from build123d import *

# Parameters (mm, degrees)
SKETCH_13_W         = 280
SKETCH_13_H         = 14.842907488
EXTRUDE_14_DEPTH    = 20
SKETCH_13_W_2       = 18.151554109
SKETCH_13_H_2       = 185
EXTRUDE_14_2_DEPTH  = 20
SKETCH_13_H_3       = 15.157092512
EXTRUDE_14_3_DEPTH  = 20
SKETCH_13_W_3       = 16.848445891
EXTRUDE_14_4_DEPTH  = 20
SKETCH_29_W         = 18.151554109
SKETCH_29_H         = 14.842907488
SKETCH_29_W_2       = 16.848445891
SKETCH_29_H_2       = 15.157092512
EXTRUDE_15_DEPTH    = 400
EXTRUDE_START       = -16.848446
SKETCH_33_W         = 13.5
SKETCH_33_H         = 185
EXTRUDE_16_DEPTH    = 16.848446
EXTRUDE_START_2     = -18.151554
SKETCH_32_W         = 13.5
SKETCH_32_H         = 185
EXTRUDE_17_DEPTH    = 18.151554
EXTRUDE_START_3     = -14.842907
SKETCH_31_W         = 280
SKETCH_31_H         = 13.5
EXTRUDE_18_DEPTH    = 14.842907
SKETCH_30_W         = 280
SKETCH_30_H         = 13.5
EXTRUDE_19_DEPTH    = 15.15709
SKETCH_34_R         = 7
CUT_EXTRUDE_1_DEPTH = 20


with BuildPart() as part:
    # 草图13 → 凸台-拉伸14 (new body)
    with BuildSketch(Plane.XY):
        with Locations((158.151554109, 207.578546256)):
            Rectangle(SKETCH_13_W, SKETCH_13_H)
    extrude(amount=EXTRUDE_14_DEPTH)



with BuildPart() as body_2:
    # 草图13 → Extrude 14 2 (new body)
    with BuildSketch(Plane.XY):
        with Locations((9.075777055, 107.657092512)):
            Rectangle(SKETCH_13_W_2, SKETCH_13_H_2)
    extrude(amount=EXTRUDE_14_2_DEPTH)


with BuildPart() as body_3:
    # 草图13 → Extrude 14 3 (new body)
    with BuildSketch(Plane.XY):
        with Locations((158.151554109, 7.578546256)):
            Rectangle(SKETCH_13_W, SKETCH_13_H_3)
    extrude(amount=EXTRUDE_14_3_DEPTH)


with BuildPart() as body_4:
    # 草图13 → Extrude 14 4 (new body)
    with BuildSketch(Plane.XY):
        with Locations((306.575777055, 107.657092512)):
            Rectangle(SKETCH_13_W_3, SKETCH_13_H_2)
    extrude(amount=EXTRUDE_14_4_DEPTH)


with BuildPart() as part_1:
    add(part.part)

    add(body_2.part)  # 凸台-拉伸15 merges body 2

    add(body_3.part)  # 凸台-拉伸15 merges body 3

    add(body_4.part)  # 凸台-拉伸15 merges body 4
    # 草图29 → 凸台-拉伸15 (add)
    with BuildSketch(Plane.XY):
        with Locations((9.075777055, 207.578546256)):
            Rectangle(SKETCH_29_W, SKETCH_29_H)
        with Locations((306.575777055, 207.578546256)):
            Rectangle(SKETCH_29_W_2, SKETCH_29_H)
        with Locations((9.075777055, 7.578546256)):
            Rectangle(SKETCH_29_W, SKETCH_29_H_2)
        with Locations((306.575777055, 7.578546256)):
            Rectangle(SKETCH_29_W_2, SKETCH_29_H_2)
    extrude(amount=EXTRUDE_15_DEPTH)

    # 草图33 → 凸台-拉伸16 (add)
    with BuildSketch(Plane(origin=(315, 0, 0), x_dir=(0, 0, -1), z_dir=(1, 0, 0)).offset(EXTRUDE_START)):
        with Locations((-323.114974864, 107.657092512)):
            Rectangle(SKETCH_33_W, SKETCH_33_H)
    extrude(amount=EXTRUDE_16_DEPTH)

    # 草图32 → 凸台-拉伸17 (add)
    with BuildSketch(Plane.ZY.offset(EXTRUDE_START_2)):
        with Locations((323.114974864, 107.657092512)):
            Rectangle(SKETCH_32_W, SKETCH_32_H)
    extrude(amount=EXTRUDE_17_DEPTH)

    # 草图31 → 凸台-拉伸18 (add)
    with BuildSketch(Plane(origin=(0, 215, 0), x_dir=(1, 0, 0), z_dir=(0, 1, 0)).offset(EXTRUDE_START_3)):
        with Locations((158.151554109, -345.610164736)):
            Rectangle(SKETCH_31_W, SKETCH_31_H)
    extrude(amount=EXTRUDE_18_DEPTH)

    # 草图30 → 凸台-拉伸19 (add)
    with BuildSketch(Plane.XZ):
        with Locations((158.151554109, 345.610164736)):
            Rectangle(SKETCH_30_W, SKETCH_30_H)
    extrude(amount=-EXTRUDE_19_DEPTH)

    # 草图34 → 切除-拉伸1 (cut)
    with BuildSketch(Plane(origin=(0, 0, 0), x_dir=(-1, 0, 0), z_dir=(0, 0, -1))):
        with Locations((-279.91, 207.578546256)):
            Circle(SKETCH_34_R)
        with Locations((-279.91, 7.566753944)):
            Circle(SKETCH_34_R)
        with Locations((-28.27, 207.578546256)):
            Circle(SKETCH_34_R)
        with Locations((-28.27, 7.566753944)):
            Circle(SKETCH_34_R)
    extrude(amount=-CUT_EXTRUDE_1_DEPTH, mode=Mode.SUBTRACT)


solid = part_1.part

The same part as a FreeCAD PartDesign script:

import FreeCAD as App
import Part
import Sketcher

V = App.Vector

doc = App.newDocument("Part")
body = doc.addObject("PartDesign::Body", "Body")

# Sketch on XY plane
sketch1 = doc.addObject("Sketcher::SketchObject", "Sketch")
body.addObject(sketch1)
sketch1.AttachmentSupport = (doc.XY_Plane, [""])
sketch1.MapMode = "FlatFace"
sketch1.addGeometry([
    Part.LineSegment(V(18.151554, 215, 0), V(18.151554, 200.157093, 0)),
    Part.LineSegment(V(18.151554, 200.157093, 0), V(298.151554, 200.157093, 0)),
    Part.LineSegment(V(298.151554, 200.157093, 0), V(298.151554, 215, 0)),
    Part.LineSegment(V(298.151554, 215, 0), V(18.151554, 215, 0)),
], False)
sketch1.addConstraint([
    Sketcher.Constraint("Coincident", 0, 2, 1, 1),
    Sketcher.Constraint("Coincident", 1, 2, 2, 1),
    Sketcher.Constraint("Coincident", 2, 2, 3, 1),
    Sketcher.Constraint("Coincident", 3, 2, 0, 1),
    Sketcher.Constraint("Vertical", 0),
    Sketcher.Constraint("Horizontal", 1),
    Sketcher.Constraint("Vertical", 2),
    Sketcher.Constraint("Horizontal", 3),
    Sketcher.Constraint("DistanceX", 1, 1, 1, 2, 280.0),
    Sketcher.Constraint("DistanceY", -1, 1, 2, 2, 215.0),
    Sketcher.Constraint("DistanceY", 0, 2, 0, 1, 14.842907),
    Sketcher.Constraint("DistanceX", -1, 1, 0, 2, 18.151554),
])
pad1 = doc.addObject("PartDesign::Pad", "Pad")
body.addObject(pad1)
pad1.Profile = sketch1
pad1.Length = 20
body2 = doc.addObject("PartDesign::Body", "Body001")

# Sketch on XY plane
sketch2 = doc.addObject("Sketcher::SketchObject", "Sketch001")
body2.addObject(sketch2)
sketch2.AttachmentSupport = (doc.getObject("XY_Plane001"), [""])
sketch2.MapMode = "FlatFace"
sketch2.addGeometry([
    Part.LineSegment(V(0, 200.157093, 0), V(0, 15.157093, 0)),
    Part.LineSegment(V(0, 15.157093, 0), V(18.151554, 15.157093, 0)),
    Part.LineSegment(V(18.151554, 15.157093, 0), V(18.151554, 200.157093, 0)),
    Part.LineSegment(V(18.151554, 200.157093, 0), V(0, 200.157093, 0)),
], False)
sketch2.addConstraint([
    Sketcher.Constraint("Coincident", 0, 2, 1, 1),
    Sketcher.Constraint("Coincident", 1, 2, 2, 1),
    Sketcher.Constraint("Coincident", 2, 2, 3, 1),
    Sketcher.Constraint("Coincident", 3, 2, 0, 1),
    Sketcher.Constraint("Vertical", 0),
    Sketcher.Constraint("Horizontal", 1),
    Sketcher.Constraint("Vertical", 2),
    Sketcher.Constraint("Horizontal", 3),
    Sketcher.Constraint("PointOnObject", 0, 2, -2),
    Sketcher.Constraint("DistanceY", 0, 2, 0, 1, 185.0),
    Sketcher.Constraint("DistanceX", 1, 1, 1, 2, 18.151554),
    Sketcher.Constraint("DistanceY", -1, 1, 0, 2, 15.157093),
])
pad2 = doc.addObject("PartDesign::Pad", "Pad001")
body2.addObject(pad2)
pad2.Profile = sketch2
pad2.Length = 20
body3 = doc.addObject("PartDesign::Body", "Body002")

# Sketch on XY plane
sketch3 = doc.addObject("Sketcher::SketchObject", "Sketch002")
body3.addObject(sketch3)
sketch3.AttachmentSupport = (doc.getObject("XY_Plane002"), [""])
sketch3.MapMode = "FlatFace"
sketch3.addGeometry([
    Part.LineSegment(V(18.151554, 15.157093, 0), V(18.151554, 0, 0)),
    Part.LineSegment(V(18.151554, 0, 0), V(298.151554, 0, 0)),
    Part.LineSegment(V(298.151554, 0, 0), V(298.151554, 15.157093, 0)),
    Part.LineSegment(V(298.151554, 15.157093, 0), V(18.151554, 15.157093, 0)),
], False)
sketch3.addConstraint([
    Sketcher.Constraint("Coincident", 0, 2, 1, 1),
    Sketcher.Constraint("Coincident", 1, 2, 2, 1),
    Sketcher.Constraint("Coincident", 2, 2, 3, 1),
    Sketcher.Constraint("Coincident", 3, 2, 0, 1),
    Sketcher.Constraint("Vertical", 0),
    Sketcher.Constraint("Horizontal", 1),
    Sketcher.Constraint("Vertical", 2),
    Sketcher.Constraint("Horizontal", 3),
    Sketcher.Constraint("PointOnObject", 0, 2, -1),
    Sketcher.Constraint("DistanceX", 1, 1, 1, 2, 280.0),
    Sketcher.Constraint("DistanceY", 0, 2, 0, 1, 15.157093),
    Sketcher.Constraint("DistanceX", -1, 1, 0, 2, 18.151554),
])
pad3 = doc.addObject("PartDesign::Pad", "Pad002")
body3.addObject(pad3)
pad3.Profile = sketch3
pad3.Length = 20
body4 = doc.addObject("PartDesign::Body", "Body003")

# Sketch on XY plane
sketch4 = doc.addObject("Sketcher::SketchObject", "Sketch003")
body4.addObject(sketch4)
sketch4.AttachmentSupport = (doc.getObject("XY_Plane003"), [""])
sketch4.MapMode = "FlatFace"
sketch4.addGeometry([
    Part.LineSegment(V(298.151554, 200.157093, 0), V(298.151554, 15.157093, 0)),
    Part.LineSegment(V(298.151554, 15.157093, 0), V(315, 15.157093, 0)),
    Part.LineSegment(V(315, 15.157093, 0), V(315, 200.157093, 0)),
    Part.LineSegment(V(315, 200.157093, 0), V(298.151554, 200.157093, 0)),
], False)
sketch4.addConstraint([
    Sketcher.Constraint("Coincident", 0, 2, 1, 1),
    Sketcher.Constraint("Coincident", 1, 2, 2, 1),
    Sketcher.Constraint("Coincident", 2, 2, 3, 1),
    Sketcher.Constraint("Coincident", 3, 2, 0, 1),
    Sketcher.Constraint("Vertical", 0),
    Sketcher.Constraint("Horizontal", 1),
    Sketcher.Constraint("Vertical", 2),
    Sketcher.Constraint("Horizontal", 3),
    Sketcher.Constraint("DistanceY", 0, 2, 0, 1, 185.0),
    Sketcher.Constraint("DistanceX", -1, 1, 1, 2, 315.0),
    Sketcher.Constraint("DistanceX", 1, 1, 1, 2, 16.848446),
    Sketcher.Constraint("DistanceY", -1, 1, 0, 2, 15.157093),
])
pad4 = doc.addObject("PartDesign::Pad", "Pad003")
body4.addObject(pad4)
pad4.Profile = sketch4
pad4.Length = 20
body.AllowCompound = True
doc.recompute()

boolean = doc.addObject("PartDesign::Boolean", "Boolean")
body.addObject(boolean)
boolean.Type = "Fuse"
boolean.addObjects([body2])
doc.recompute()

boolean2 = doc.addObject("PartDesign::Boolean", "Boolean001")
body.addObject(boolean2)
boolean2.Type = "Fuse"
boolean2.addObjects([body3])
doc.recompute()

boolean3 = doc.addObject("PartDesign::Boolean", "Boolean002")
body.addObject(boolean3)
boolean3.Type = "Fuse"
boolean3.addObjects([body4])

# Sketch on XY plane
sketch5 = doc.addObject("Sketcher::SketchObject", "Sketch004")
body.addObject(sketch5)
sketch5.AttachmentSupport = (doc.XY_Plane, [""])
sketch5.MapMode = "FlatFace"
sketch5.addGeometry([
    Part.LineSegment(V(0, 215, 0), V(0, 200.157093, 0)),  # 0
    Part.LineSegment(V(0, 200.157093, 0), V(18.151554, 200.157093, 0)),  # 1
    Part.LineSegment(V(18.151554, 200.157093, 0), V(18.151554, 215, 0)),  # 2
    Part.LineSegment(V(18.151554, 215, 0), V(0, 215, 0)),  # 3
    Part.LineSegment(V(298.151554, 215, 0), V(298.151554, 200.157093, 0)),  # 4
    Part.LineSegment(V(298.151554, 200.157093, 0), V(315, 200.157093, 0)),  # 5
    Part.LineSegment(V(315, 200.157093, 0), V(315, 215, 0)),  # 6
    Part.LineSegment(V(315, 215, 0), V(298.151554, 215, 0)),  # 7
    Part.LineSegment(V(0, 15.157093, 0), V(0, 0, 0)),  # 8
    Part.LineSegment(V(0, 0, 0), V(18.151554, 0, 0)),  # 9
    Part.LineSegment(V(18.151554, 0, 0), V(18.151554, 15.157093, 0)),  # 10
    Part.LineSegment(V(18.151554, 15.157093, 0), V(0, 15.157093, 0)),  # 11
    Part.LineSegment(V(298.151554, 15.157093, 0), V(298.151554, 0, 0)),  # 12
    Part.LineSegment(V(298.151554, 0, 0), V(315, 0, 0)),  # 13
    Part.LineSegment(V(315, 0, 0), V(315, 15.157093, 0)),  # 14
    Part.LineSegment(V(315, 15.157093, 0), V(298.151554, 15.157093, 0)),  # 15
], False)
sketch5.addConstraint([
    Sketcher.Constraint("Coincident", 0, 2, 1, 1),
    Sketcher.Constraint("Coincident", 1, 2, 2, 1),
    Sketcher.Constraint("Coincident", 2, 2, 3, 1),
    Sketcher.Constraint("Coincident", 3, 2, 0, 1),
    Sketcher.Constraint("Coincident", 4, 2, 5, 1),
    Sketcher.Constraint("Coincident", 5, 2, 6, 1),
    Sketcher.Constraint("Coincident", 6, 2, 7, 1),
    Sketcher.Constraint("Coincident", 7, 2, 4, 1),
    Sketcher.Constraint("Coincident", 8, 2, 9, 1),
    Sketcher.Constraint("Coincident", 9, 2, 10, 1),
    Sketcher.Constraint("Coincident", 10, 2, 11, 1),
    Sketcher.Constraint("Coincident", 11, 2, 8, 1),
    Sketcher.Constraint("Coincident", 12, 2, 13, 1),
    Sketcher.Constraint("Coincident", 13, 2, 14, 1),
    Sketcher.Constraint("Coincident", 14, 2, 15, 1),
    Sketcher.Constraint("Coincident", 15, 2, 12, 1),
    Sketcher.Constraint("Vertical", 0),
    Sketcher.Constraint("Horizontal", 1),
    Sketcher.Constraint("Vertical", 2),
    Sketcher.Constraint("Horizontal", 3),
    Sketcher.Constraint("Vertical", 4),
    Sketcher.Constraint("Horizontal", 5),
    Sketcher.Constraint("Vertical", 6),
    Sketcher.Constraint("Horizontal", 7),
    Sketcher.Constraint("Vertical", 8),
    Sketcher.Constraint("Horizontal", 9),
    Sketcher.Constraint("Vertical", 10),
    Sketcher.Constraint("Horizontal", 11),
    Sketcher.Constraint("Vertical", 12),
    Sketcher.Constraint("Horizontal", 13),
    Sketcher.Constraint("Vertical", 14),
    Sketcher.Constraint("Horizontal", 15),
    Sketcher.Constraint("Coincident", 8, 2, -1, 1),
    Sketcher.Constraint("PointOnObject", 0, 2, -2),
    Sketcher.Constraint("PointOnObject", 12, 2, -1),
    Sketcher.Constraint("Horizontal", 1, 2, 4, 2),
    Sketcher.Constraint("Horizontal", 3, 2, 6, 2),
    Sketcher.Constraint("Horizontal", 11, 2, 14, 2),
    Sketcher.Constraint("Vertical", 2, 2, 9, 2),
    Sketcher.Constraint("Vertical", 7, 2, 12, 2),
    Sketcher.Constraint("Vertical", 6, 2, 13, 2),
    Sketcher.Constraint("DistanceY", -1, 1, 2, 2, 215.0),
    Sketcher.Constraint("DistanceX", -1, 1, 5, 2, 315.0),
    Sketcher.Constraint("DistanceX", 1, 2, 4, 2, 280.0),
    Sketcher.Constraint("DistanceY", 10, 2, 1, 2, 185.0),
    Sketcher.Constraint("DistanceX", 1, 1, 1, 2, 18.151554),
    Sketcher.Constraint("DistanceY", 0, 2, 0, 1, 14.842907),
])
pad5 = doc.addObject("PartDesign::Pad", "Pad004")
body.addObject(pad5)
pad5.Profile = sketch5
pad5.Length = 400

# Sketch on YZ plane
sketch6 = doc.addObject("Sketcher::SketchObject", "Sketch005")
body.addObject(sketch6)
sketch6.AttachmentSupport = (doc.YZ_Plane, [""])
sketch6.MapMode = "FlatFace"
sketch6.AttachmentOffset = App.Placement(V(0, 0, 298.151554), App.Rotation())
sketch6.addGeometry([
    Part.LineSegment(V(200.157093, 329.864975, 0), V(15.157093, 329.864975, 0)),
    Part.LineSegment(V(15.157093, 329.864975, 0), V(15.157093, 316.364975, 0)),
    Part.LineSegment(V(15.157093, 316.364975, 0), V(200.157093, 316.364975, 0)),
    Part.LineSegment(V(200.157093, 316.364975, 0), V(200.157093, 329.864975, 0)),
], False)
sketch6.addConstraint([
    Sketcher.Constraint("Coincident", 0, 2, 1, 1),
    Sketcher.Constraint("Coincident", 1, 2, 2, 1),
    Sketcher.Constraint("Coincident", 2, 2, 3, 1),
    Sketcher.Constraint("Coincident", 3, 2, 0, 1),
    Sketcher.Constraint("Horizontal", 0),
    Sketcher.Constraint("Vertical", 1),
    Sketcher.Constraint("Horizontal", 2),
    Sketcher.Constraint("Vertical", 3),
    Sketcher.Constraint("DistanceX", 0, 2, 0, 1, 185.0),
    Sketcher.Constraint("DistanceY", 1, 2, 1, 1, 13.5),
    Sketcher.Constraint("DistanceX", -1, 1, 0, 2, 15.157093),
    Sketcher.Constraint("DistanceY", -1, 1, 0, 2, 329.864975),
])
pad6 = doc.addObject("PartDesign::Pad", "Pad005")
body.addObject(pad6)
pad6.Profile = sketch6
pad6.Length = 16.848446

# Sketch on YZ plane
sketch7 = doc.addObject("Sketcher::SketchObject", "Sketch006")
body.addObject(sketch7)
sketch7.AttachmentSupport = (doc.YZ_Plane, [""])
sketch7.MapMode = "FlatFace"
sketch7.AttachmentOffset = App.Placement(V(0, 0, 18.151554), App.Rotation())
sketch7.addGeometry([
    Part.LineSegment(V(200.157093, 316.364975, 0), V(15.157093, 316.364975, 0)),
    Part.LineSegment(V(15.157093, 316.364975, 0), V(15.157093, 329.864975, 0)),
    Part.LineSegment(V(15.157093, 329.864975, 0), V(200.157093, 329.864975, 0)),
    Part.LineSegment(V(200.157093, 329.864975, 0), V(200.157093, 316.364975, 0)),
], False)
sketch7.addConstraint([
    Sketcher.Constraint("Coincident", 0, 2, 1, 1),
    Sketcher.Constraint("Coincident", 1, 2, 2, 1),
    Sketcher.Constraint("Coincident", 2, 2, 3, 1),
    Sketcher.Constraint("Coincident", 3, 2, 0, 1),
    Sketcher.Constraint("Horizontal", 0),
    Sketcher.Constraint("Vertical", 1),
    Sketcher.Constraint("Horizontal", 2),
    Sketcher.Constraint("Vertical", 3),
    Sketcher.Constraint("DistanceX", 0, 2, 0, 1, 185.0),
    Sketcher.Constraint("DistanceY", 1, 1, 1, 2, 13.5),
    Sketcher.Constraint("DistanceX", -1, 1, 0, 2, 15.157093),
    Sketcher.Constraint("DistanceY", -1, 1, 0, 2, 316.364975),
])
pad7 = doc.addObject("PartDesign::Pad", "Pad006")
body.addObject(pad7)
pad7.Profile = sketch7
pad7.Length = 18.151554
pad7.Reversed = True

# Sketch on XZ plane
sketch8 = doc.addObject("Sketcher::SketchObject", "Sketch007")
body.addObject(sketch8)
sketch8.AttachmentSupport = (doc.XZ_Plane, [""])
sketch8.MapMode = "FlatFace"
sketch8.AttachmentOffset = App.Placement(V(0, 0, -200.157093), App.Rotation())
sketch8.addGeometry([
    Part.LineSegment(V(18.151554, 338.860165, 0), V(18.151554, 352.360165, 0)),
    Part.LineSegment(V(18.151554, 352.360165, 0), V(298.151554, 352.360165, 0)),
    Part.LineSegment(V(298.151554, 352.360165, 0), V(298.151554, 338.860165, 0)),
    Part.LineSegment(V(298.151554, 338.860165, 0), V(18.151554, 338.860165, 0)),
], False)
sketch8.addConstraint([
    Sketcher.Constraint("Coincident", 0, 2, 1, 1),
    Sketcher.Constraint("Coincident", 1, 2, 2, 1),
    Sketcher.Constraint("Coincident", 2, 2, 3, 1),
    Sketcher.Constraint("Coincident", 3, 2, 0, 1),
    Sketcher.Constraint("Vertical", 0),
    Sketcher.Constraint("Horizontal", 1),
    Sketcher.Constraint("Vertical", 2),
    Sketcher.Constraint("Horizontal", 3),
    Sketcher.Constraint("DistanceX", 1, 1, 1, 2, 280.0),
    Sketcher.Constraint("DistanceY", 0, 1, 0, 2, 13.5),
    Sketcher.Constraint("DistanceX", -1, 1, 0, 2, 18.151554),
    Sketcher.Constraint("DistanceY", -1, 1, 0, 2, 352.360165),
])
pad8 = doc.addObject("PartDesign::Pad", "Pad007")
body.addObject(pad8)
pad8.Profile = sketch8
pad8.Length = 14.842907
pad8.Reversed = True

# Sketch on XZ plane
sketch9 = doc.addObject("Sketcher::SketchObject", "Sketch008")
body.addObject(sketch9)
sketch9.AttachmentSupport = (doc.XZ_Plane, [""])
sketch9.MapMode = "FlatFace"
sketch9.addGeometry([
    Part.LineSegment(V(18.151554, 352.360165, 0), V(18.151554, 338.860165, 0)),
    Part.LineSegment(V(18.151554, 338.860165, 0), V(298.151554, 338.860165, 0)),
    Part.LineSegment(V(298.151554, 338.860165, 0), V(298.151554, 352.360165, 0)),
    Part.LineSegment(V(298.151554, 352.360165, 0), V(18.151554, 352.360165, 0)),
], False)
sketch9.addConstraint([
    Sketcher.Constraint("Coincident", 0, 2, 1, 1),
    Sketcher.Constraint("Coincident", 1, 2, 2, 1),
    Sketcher.Constraint("Coincident", 2, 2, 3, 1),
    Sketcher.Constraint("Coincident", 3, 2, 0, 1),
    Sketcher.Constraint("Vertical", 0),
    Sketcher.Constraint("Horizontal", 1),
    Sketcher.Constraint("Vertical", 2),
    Sketcher.Constraint("Horizontal", 3),
    Sketcher.Constraint("DistanceX", 1, 1, 1, 2, 280.0),
    Sketcher.Constraint("DistanceY", 0, 2, 0, 1, 13.5),
    Sketcher.Constraint("DistanceX", -1, 1, 0, 2, 18.151554),
    Sketcher.Constraint("DistanceY", -1, 1, 0, 2, 338.860165),
])
pad9 = doc.addObject("PartDesign::Pad", "Pad008")
body.addObject(pad9)
pad9.Profile = sketch9
pad9.Length = 15.15709
pad9.Reversed = True

# Sketch on XY plane
sketch10 = doc.addObject("Sketcher::SketchObject", "Sketch009")
body.addObject(sketch10)
sketch10.AttachmentSupport = (doc.XY_Plane, [""])
sketch10.MapMode = "FlatFace"
sketch10.addGeometry([
    Part.Circle(V(279.91, 207.578546, 0), V(0, 0, 1), 7),
    Part.Circle(V(279.91, 7.566754, 0), V(0, 0, 1), 7),
    Part.Circle(V(28.27, 207.578546, 0), V(0, 0, 1), 7),
    Part.Circle(V(28.27, 7.566754, 0), V(0, 0, 1), 7),
], False)
sketch10.addConstraint([
    Sketcher.Constraint("Equal", 0, 1),
    Sketcher.Constraint("Equal", 1, 2),
    Sketcher.Constraint("Equal", 2, 3),
    Sketcher.Constraint("Horizontal", 0, 3, 2, 3),
    Sketcher.Constraint("Horizontal", 1, 3, 3, 3),
    Sketcher.Constraint("Vertical", 0, 3, 1, 3),
    Sketcher.Constraint("Vertical", 2, 3, 3, 3),
    Sketcher.Constraint("Diameter", 0, 14.0),
    Sketcher.Constraint("DistanceX", -1, 1, 0, 3, 279.91),
    Sketcher.Constraint("DistanceX", -1, 1, 2, 3, 28.27),
    Sketcher.Constraint("DistanceY", -1, 1, 0, 3, 207.578546),
    Sketcher.Constraint("DistanceY", -1, 1, 1, 3, 7.566754),
])
pocket1 = doc.addObject("PartDesign::Pocket", "Pocket")
body.addObject(pocket1)
pocket1.Profile = sketch10
pocket1.Length = 20
pocket1.Reversed = True

doc.recompute()
